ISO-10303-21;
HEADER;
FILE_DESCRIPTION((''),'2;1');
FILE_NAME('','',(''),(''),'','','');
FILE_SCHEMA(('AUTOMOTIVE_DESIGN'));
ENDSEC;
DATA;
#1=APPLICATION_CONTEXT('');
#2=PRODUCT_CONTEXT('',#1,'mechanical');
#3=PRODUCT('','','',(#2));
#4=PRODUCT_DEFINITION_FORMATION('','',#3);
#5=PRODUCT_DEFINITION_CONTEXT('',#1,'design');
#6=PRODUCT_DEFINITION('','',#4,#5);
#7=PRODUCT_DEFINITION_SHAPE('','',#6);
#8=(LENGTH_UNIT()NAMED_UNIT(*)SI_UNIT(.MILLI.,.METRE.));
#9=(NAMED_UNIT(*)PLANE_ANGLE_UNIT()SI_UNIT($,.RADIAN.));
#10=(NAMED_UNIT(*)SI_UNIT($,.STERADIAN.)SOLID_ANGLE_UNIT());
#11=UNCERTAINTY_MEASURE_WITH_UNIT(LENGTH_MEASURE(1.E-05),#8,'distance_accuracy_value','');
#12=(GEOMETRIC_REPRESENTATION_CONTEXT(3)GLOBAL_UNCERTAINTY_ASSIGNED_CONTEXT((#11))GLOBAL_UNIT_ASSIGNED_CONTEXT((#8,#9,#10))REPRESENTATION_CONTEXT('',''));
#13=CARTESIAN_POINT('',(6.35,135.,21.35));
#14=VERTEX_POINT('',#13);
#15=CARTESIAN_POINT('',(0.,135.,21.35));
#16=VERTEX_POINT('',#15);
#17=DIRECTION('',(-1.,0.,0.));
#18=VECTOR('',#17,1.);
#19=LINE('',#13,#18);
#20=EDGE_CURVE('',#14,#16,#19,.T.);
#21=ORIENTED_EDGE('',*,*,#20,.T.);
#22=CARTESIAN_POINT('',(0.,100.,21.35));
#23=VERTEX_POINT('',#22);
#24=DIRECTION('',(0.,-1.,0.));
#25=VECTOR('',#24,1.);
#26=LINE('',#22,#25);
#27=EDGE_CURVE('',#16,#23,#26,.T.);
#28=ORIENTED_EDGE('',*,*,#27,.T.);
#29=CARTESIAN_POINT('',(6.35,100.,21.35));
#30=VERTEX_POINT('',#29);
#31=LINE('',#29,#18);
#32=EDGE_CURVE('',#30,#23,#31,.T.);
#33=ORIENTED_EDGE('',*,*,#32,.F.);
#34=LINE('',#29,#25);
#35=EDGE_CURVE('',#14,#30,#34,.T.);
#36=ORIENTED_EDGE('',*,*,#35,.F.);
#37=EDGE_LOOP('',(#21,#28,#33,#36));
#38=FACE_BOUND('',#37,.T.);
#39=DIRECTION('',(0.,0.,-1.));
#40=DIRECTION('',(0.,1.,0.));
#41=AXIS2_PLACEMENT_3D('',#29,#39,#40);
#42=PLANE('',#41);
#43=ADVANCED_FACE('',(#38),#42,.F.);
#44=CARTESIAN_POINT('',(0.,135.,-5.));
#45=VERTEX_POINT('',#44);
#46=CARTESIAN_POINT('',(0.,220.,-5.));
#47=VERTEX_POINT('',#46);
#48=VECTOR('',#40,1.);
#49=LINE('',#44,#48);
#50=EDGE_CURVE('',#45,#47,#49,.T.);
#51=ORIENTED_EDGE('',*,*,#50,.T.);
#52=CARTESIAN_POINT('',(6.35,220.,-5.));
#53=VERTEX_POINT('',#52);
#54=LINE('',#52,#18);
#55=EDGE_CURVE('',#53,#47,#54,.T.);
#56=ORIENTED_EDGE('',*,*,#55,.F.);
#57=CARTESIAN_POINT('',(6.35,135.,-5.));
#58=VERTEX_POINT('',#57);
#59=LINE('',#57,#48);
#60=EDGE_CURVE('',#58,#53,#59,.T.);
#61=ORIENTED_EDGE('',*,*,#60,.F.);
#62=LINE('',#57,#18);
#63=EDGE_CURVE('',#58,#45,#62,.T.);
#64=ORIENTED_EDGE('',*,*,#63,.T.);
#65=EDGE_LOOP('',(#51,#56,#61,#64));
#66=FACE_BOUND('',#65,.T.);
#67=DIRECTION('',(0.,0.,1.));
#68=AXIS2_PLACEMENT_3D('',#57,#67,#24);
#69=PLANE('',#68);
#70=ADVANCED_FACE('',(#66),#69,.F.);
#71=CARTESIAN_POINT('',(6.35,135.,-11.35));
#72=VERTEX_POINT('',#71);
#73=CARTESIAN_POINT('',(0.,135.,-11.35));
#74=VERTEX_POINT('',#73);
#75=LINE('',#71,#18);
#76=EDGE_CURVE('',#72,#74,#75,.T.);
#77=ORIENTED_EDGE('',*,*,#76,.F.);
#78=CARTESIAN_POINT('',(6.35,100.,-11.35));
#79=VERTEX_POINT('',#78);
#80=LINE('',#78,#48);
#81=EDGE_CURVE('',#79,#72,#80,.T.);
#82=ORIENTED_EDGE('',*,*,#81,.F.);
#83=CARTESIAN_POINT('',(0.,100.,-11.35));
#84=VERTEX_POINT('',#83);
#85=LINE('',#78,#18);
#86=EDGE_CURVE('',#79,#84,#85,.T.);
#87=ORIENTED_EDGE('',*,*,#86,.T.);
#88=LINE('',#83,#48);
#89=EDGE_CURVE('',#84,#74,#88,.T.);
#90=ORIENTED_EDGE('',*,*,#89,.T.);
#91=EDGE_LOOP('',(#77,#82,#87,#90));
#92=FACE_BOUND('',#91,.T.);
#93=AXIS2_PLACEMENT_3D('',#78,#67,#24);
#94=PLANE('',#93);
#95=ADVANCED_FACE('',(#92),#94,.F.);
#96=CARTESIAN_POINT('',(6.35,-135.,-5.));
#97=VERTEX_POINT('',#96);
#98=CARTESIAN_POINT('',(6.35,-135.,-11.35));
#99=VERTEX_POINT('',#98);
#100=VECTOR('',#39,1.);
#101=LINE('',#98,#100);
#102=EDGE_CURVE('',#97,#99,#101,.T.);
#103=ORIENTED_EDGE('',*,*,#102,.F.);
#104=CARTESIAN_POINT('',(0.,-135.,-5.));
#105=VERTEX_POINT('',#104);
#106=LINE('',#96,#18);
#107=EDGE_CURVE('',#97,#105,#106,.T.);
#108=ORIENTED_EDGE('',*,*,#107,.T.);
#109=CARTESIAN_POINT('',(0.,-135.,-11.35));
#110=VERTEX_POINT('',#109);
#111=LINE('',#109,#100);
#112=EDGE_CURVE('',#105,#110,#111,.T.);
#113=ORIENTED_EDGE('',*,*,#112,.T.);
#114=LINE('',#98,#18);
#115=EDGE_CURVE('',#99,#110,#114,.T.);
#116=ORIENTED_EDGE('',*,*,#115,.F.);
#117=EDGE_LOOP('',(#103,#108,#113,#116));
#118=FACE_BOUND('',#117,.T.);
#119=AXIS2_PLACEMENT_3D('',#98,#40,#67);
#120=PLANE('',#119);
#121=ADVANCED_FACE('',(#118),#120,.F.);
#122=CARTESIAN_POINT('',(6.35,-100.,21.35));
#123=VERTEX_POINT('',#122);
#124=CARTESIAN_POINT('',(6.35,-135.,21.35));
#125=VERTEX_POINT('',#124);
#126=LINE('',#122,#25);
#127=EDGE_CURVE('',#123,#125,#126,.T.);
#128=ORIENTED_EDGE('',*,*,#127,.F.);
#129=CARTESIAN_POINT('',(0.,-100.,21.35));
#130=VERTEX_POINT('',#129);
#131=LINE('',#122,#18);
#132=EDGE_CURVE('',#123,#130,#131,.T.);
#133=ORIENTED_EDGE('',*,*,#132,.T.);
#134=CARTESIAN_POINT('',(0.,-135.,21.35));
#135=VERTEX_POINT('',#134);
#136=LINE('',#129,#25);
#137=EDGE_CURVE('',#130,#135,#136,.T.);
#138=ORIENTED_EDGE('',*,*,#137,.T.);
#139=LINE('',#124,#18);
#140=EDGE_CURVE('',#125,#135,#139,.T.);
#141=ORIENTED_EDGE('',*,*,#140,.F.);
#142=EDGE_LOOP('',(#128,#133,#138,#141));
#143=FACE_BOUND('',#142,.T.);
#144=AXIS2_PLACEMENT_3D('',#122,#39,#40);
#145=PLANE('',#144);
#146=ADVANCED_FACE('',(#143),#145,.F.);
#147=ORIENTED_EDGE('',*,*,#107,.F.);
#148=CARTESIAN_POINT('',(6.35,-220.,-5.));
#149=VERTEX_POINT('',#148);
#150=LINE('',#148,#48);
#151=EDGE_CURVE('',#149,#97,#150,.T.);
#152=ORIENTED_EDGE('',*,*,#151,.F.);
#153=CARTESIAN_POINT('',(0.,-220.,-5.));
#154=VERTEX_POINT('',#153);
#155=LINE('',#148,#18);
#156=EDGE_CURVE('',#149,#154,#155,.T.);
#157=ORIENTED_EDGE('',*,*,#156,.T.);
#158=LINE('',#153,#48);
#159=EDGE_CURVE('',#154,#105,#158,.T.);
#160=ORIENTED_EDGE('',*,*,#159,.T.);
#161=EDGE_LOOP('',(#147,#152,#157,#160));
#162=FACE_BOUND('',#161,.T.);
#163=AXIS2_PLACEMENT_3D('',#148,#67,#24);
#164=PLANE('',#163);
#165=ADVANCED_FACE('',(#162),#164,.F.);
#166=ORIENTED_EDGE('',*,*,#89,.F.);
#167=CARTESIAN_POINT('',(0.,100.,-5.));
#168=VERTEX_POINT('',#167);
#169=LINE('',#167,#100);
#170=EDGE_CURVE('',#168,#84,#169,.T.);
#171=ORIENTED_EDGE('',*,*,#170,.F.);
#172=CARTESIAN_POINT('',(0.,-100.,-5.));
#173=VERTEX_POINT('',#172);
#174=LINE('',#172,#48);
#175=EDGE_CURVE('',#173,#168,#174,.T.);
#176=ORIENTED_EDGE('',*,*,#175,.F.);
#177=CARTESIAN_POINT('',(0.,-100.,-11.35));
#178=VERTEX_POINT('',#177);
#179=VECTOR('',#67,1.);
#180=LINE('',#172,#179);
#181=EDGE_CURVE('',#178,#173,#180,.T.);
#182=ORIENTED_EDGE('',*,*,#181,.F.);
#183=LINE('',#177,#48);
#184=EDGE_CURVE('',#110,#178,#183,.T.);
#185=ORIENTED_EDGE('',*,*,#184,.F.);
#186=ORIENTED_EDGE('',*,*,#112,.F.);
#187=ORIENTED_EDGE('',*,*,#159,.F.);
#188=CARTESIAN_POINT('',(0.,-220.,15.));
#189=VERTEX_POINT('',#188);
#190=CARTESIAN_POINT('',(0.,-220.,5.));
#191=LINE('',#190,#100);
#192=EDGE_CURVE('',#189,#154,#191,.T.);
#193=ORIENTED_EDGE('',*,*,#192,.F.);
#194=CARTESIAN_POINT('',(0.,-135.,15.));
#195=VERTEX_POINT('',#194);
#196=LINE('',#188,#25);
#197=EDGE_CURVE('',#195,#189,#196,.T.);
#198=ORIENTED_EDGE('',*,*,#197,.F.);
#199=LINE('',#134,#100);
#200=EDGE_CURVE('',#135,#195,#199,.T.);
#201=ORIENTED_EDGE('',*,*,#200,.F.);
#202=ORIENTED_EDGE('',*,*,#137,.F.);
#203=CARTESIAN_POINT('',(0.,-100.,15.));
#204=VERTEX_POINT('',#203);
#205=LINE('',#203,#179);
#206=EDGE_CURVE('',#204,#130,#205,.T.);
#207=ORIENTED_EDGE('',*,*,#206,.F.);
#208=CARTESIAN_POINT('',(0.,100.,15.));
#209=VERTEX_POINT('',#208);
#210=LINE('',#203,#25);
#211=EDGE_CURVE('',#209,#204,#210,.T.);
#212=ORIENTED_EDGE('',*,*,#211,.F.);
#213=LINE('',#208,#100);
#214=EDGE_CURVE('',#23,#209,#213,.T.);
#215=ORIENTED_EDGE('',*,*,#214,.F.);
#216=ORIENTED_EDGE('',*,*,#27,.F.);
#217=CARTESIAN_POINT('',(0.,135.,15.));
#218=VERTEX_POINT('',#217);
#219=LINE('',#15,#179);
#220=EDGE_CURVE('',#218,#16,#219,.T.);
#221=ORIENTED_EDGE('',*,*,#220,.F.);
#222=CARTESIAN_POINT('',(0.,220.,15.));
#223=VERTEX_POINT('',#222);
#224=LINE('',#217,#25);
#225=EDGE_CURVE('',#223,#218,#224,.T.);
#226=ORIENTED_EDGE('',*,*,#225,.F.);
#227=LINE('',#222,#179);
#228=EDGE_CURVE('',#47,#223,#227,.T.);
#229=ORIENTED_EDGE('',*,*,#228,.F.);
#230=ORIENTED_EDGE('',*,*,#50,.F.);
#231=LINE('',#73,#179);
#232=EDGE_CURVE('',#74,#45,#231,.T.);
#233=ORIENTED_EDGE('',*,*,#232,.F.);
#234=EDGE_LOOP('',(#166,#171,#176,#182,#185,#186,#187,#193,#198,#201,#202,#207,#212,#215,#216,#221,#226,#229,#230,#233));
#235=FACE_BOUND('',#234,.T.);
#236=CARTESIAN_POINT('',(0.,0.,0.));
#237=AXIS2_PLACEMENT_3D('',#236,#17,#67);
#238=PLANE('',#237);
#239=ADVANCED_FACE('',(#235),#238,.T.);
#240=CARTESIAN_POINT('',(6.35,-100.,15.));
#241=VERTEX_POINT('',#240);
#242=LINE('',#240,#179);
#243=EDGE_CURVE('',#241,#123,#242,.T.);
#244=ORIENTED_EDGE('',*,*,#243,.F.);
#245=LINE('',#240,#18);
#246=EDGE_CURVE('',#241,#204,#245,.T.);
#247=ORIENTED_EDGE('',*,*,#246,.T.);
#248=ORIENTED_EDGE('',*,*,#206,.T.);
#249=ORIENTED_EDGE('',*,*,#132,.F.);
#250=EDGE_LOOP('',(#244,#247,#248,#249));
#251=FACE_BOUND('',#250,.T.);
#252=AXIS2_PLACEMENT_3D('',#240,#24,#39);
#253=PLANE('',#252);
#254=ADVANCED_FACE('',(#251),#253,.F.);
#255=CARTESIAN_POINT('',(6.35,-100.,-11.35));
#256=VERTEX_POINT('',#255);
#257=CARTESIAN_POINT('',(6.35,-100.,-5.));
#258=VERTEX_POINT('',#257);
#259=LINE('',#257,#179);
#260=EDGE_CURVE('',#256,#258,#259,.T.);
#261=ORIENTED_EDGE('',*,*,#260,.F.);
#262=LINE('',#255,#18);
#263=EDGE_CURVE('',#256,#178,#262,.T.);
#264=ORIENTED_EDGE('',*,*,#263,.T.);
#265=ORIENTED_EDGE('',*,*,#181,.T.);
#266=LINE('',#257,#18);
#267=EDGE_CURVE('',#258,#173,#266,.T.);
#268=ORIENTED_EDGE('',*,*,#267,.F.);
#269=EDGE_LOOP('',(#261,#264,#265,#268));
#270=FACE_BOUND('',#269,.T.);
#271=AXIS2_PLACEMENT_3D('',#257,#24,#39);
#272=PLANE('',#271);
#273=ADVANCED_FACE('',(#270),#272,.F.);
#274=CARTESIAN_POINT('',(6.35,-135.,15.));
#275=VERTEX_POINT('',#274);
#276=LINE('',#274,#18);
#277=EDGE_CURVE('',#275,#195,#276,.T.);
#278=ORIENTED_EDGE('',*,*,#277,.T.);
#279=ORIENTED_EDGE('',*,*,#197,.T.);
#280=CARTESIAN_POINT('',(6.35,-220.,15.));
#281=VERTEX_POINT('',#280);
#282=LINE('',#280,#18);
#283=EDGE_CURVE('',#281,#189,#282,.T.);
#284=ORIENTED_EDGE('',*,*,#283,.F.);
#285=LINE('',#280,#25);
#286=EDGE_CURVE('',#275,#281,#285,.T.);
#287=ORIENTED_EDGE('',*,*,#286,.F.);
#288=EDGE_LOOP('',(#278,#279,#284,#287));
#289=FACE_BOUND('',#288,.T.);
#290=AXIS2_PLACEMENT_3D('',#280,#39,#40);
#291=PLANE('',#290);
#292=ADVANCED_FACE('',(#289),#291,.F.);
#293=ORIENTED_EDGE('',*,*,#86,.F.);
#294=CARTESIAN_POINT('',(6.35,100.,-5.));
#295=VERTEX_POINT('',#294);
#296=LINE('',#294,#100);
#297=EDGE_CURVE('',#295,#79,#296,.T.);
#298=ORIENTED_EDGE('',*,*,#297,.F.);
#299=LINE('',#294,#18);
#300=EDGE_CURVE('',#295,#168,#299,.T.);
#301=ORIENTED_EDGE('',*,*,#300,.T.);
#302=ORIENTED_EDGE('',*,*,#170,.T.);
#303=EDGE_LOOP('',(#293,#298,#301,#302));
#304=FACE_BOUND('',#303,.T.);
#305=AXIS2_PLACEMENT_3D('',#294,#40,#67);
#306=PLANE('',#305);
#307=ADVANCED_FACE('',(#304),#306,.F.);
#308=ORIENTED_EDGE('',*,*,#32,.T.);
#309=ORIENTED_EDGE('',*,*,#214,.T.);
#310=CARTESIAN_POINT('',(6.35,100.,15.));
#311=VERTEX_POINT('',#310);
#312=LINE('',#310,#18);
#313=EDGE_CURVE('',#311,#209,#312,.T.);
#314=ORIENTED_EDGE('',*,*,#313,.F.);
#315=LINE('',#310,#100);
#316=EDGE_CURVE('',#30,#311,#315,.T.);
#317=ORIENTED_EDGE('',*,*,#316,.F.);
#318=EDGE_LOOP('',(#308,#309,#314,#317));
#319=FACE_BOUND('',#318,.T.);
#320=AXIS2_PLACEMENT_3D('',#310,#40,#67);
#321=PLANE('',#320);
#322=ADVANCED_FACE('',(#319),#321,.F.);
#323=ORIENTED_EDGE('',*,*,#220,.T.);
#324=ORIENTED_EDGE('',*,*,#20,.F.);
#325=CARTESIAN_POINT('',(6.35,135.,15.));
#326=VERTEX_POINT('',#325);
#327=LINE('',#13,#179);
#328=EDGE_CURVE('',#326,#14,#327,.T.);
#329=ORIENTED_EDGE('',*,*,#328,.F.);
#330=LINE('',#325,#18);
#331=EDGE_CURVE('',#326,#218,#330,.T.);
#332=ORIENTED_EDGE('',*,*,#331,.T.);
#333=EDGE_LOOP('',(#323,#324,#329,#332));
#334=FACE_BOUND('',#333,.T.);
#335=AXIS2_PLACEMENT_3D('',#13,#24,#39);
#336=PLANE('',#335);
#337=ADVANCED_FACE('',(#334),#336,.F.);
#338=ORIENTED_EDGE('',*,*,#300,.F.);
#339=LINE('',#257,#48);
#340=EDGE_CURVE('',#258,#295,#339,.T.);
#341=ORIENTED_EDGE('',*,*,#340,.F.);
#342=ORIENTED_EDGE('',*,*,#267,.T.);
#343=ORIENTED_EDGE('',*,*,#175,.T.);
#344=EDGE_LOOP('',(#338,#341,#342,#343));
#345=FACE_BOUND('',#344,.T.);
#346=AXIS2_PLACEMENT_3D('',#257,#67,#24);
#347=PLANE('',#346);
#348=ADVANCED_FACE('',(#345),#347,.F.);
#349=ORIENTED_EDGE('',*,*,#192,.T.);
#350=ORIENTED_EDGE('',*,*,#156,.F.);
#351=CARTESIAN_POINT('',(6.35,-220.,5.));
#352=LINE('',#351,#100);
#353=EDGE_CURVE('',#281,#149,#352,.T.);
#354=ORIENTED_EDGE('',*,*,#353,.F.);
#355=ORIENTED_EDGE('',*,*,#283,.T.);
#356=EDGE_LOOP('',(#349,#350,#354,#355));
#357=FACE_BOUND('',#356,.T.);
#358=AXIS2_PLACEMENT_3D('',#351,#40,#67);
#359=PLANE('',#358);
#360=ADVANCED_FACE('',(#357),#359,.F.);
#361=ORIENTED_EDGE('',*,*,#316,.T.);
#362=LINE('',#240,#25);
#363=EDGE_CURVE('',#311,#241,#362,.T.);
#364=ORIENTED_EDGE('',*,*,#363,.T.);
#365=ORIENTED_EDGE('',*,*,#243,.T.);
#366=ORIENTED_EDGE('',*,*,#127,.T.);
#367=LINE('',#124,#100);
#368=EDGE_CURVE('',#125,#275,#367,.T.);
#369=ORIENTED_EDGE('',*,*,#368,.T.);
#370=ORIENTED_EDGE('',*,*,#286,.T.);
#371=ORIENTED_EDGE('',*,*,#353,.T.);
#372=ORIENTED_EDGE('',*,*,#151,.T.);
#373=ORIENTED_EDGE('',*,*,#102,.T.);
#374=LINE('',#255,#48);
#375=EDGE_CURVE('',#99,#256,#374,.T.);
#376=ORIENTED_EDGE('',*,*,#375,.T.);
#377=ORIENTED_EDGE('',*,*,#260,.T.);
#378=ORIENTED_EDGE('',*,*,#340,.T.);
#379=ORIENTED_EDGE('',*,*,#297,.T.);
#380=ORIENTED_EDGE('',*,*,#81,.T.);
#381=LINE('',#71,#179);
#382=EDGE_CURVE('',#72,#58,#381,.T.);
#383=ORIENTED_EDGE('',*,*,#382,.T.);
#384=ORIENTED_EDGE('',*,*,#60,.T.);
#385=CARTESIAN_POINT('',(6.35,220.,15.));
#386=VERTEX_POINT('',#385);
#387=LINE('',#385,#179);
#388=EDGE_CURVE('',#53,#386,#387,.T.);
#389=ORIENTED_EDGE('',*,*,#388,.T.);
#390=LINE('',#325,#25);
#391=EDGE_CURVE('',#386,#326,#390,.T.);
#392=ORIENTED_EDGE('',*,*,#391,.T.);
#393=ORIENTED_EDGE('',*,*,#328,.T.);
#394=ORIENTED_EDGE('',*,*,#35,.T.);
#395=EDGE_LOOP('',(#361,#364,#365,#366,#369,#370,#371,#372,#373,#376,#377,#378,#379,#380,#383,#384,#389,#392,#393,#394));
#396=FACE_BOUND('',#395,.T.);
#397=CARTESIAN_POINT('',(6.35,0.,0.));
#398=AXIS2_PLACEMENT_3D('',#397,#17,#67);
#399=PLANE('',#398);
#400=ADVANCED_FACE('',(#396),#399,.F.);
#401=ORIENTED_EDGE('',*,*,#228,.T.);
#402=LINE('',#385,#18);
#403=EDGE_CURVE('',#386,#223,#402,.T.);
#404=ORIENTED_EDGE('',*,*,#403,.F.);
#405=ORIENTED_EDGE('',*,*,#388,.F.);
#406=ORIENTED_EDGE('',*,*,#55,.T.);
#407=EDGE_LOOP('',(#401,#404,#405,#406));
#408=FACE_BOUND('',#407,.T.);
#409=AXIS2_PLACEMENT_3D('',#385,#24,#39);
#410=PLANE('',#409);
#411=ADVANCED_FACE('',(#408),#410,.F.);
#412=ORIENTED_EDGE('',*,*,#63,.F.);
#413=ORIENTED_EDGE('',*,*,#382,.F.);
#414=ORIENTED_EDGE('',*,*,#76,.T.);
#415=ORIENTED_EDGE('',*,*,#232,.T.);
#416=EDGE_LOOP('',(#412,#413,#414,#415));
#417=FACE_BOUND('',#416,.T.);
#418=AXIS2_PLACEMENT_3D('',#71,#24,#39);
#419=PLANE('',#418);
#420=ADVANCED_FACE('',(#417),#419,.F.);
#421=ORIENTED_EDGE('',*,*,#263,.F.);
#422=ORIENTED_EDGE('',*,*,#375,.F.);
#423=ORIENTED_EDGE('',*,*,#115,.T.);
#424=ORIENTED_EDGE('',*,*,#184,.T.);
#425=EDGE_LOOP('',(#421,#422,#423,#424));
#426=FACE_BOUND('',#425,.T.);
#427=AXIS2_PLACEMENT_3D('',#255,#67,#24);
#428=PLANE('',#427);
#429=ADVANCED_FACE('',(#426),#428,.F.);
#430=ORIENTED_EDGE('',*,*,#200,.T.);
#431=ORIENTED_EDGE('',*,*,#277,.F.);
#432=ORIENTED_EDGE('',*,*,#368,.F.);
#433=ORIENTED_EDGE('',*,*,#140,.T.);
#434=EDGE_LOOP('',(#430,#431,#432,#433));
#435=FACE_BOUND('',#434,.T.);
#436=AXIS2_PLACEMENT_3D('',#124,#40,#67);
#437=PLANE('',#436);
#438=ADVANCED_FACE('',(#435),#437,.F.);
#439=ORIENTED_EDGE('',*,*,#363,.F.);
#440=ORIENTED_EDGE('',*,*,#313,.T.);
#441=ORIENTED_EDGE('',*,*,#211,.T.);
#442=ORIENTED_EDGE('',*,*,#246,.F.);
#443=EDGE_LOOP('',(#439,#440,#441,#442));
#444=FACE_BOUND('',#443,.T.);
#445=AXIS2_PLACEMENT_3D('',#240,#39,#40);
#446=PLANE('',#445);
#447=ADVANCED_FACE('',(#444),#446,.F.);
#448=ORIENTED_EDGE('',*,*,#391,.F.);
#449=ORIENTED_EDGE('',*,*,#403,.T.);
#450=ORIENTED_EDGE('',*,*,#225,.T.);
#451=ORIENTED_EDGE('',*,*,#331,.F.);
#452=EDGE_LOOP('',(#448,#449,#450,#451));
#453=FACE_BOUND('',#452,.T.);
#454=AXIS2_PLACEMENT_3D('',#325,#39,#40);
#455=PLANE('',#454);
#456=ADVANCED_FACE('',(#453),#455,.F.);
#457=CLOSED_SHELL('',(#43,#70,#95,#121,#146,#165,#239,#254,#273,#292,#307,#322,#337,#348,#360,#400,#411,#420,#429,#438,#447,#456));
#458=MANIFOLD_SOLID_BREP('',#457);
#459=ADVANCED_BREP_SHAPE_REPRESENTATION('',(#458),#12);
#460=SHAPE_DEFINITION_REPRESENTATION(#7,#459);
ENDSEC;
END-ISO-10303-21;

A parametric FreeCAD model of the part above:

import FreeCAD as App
import Part
import Sketcher
Q = App.Units.Quantity

doc = App.newDocument("Part")
params = doc.addObject("Spreadsheet::Sheet", "Params")
for row, (alias, value) in enumerate([
    ("sketch1_width", "85 mm"),
    ("sketch1_width2", "35 mm"),
    ("sketch1_width3", "200 mm"),
    ("sketch1_height", "20 mm"),
    ("sketch1_height2", "6.35 mm"),
    ("pad1_length", "6.35 mm"),
], start=1):
    params.set(f"A{row}", alias)
    params.set(f"B{row}", "=" + value)
    params.setAlias(f"B{row}", alias)

body = doc.addObject("PartDesign::Body", "Body")

sketch1 = doc.addObject("Sketcher::SketchObject", "Sketch")
body.addObject(sketch1)
sketch1.AttachmentSupport = (doc.YZ_Plane, [""])
sketch1.MapMode = "FlatFace"
sketch1.addGeometry([
    Part.LineSegment(App.Vector(-220, -5, 0), App.Vector(-135, -5, 0)),
    Part.LineSegment(App.Vector(-135, -5, 0), App.Vector(-135, -11.35, 0)),
    Part.LineSegment(App.Vector(-135, -11.35, 0), App.Vector(-100, -11.35, 0)),
    Part.LineSegment(App.Vector(-100, -11.35, 0), App.Vector(-100, -5, 0)),
    Part.LineSegment(App.Vector(-100, -5, 0), App.Vector(100, -5, 0)),
    Part.LineSegment(App.Vector(100, -5, 0), App.Vector(100, -11.35, 0)),
    Part.LineSegment(App.Vector(100, -11.35, 0), App.Vector(135, -11.35, 0)),
    Part.LineSegment(App.Vector(135, -11.35, 0), App.Vector(135, -5, 0)),
    Part.LineSegment(App.Vector(135, -5, 0), App.Vector(220, -5, 0)),
    Part.LineSegment(App.Vector(220, -5, 0), App.Vector(220, 15, 0)),
    Part.LineSegment(App.Vector(220, 15, 0), App.Vector(135, 15, 0)),
    Part.LineSegment(App.Vector(135, 15, 0), App.Vector(135, 21.35, 0)),
    Part.LineSegment(App.Vector(135, 21.35, 0), App.Vector(100, 21.35, 0)),
    Part.LineSegment(App.Vector(100, 21.35, 0), App.Vector(100, 15, 0)),
    Part.LineSegment(App.Vector(100, 15, 0), App.Vector(-100, 15, 0)),
    Part.LineSegment(App.Vector(-100, 15, 0), App.Vector(-100, 21.35, 0)),
    Part.LineSegment(App.Vector(-100, 21.35, 0), App.Vector(-135, 21.35, 0)),
    Part.LineSegment(App.Vector(-135, 21.35, 0), App.Vector(-135, 15, 0)),
    Part.LineSegment(App.Vector(-135, 15, 0), App.Vector(-220, 15, 0)),
    Part.LineSegment(App.Vector(-220, 15, 0), App.Vector(-220, -5, 0)),
], False)
sketch1.addConstraint([
    Sketcher.Constraint("Coincident", 0, 2, 1, 1),
    Sketcher.Constraint("Coincident", 1, 2, 2, 1),
    Sketcher.Constraint("Coincident", 2, 2, 3, 1),
    Sketcher.Constraint("Coincident", 3, 2, 4, 1),
    Sketcher.Constraint("Coincident", 4, 2, 5, 1),
    Sketcher.Constraint("Coincident", 5, 2, 6, 1),
    Sketcher.Constraint("Coincident", 6, 2, 7, 1),
    Sketcher.Constraint("Coincident", 7, 2, 8, 1),
    Sketcher.Constraint("Coincident", 8, 2, 9, 1),
    Sketcher.Constraint("Coincident", 9, 2, 10, 1),
    Sketcher.Constraint("Coincident", 10, 2, 11, 1),
    Sketcher.Constraint("Coincident", 11, 2, 12, 1),
    Sketcher.Constraint("Coincident", 12, 2, 13, 1),
    Sketcher.Constraint("Coincident", 13, 2, 14, 1),
    Sketcher.Constraint("Coincident", 14, 2, 15, 1),
    Sketcher.Constraint("Coincident", 15, 2, 16, 1),
    Sketcher.Constraint("Coincident", 16, 2, 17, 1),
    Sketcher.Constraint("Coincident", 17, 2, 18, 1),
    Sketcher.Constraint("Coincident", 18, 2, 19, 1),
    Sketcher.Constraint("Coincident", 19, 2, 0, 1),
    Sketcher.Constraint("Horizontal", 0),
    Sketcher.Constraint("Vertical", 1),
    Sketcher.Constraint("Horizontal", 2),
    Sketcher.Constraint("Vertical", 3),
    Sketcher.Constraint("Horizontal", 4),
    Sketcher.Constraint("Vertical", 5),
    Sketcher.Constraint("Horizontal", 6),
    Sketcher.Constraint("Vertical", 7),
    Sketcher.Constraint("Horizontal", 8),
    Sketcher.Constraint("Vertical", 9),
    Sketcher.Constraint("Horizontal", 10),
    Sketcher.Constraint("Vertical", 11),
    Sketcher.Constraint("Horizontal", 12),
    Sketcher.Constraint("Vertical", 13),
    Sketcher.Constraint("Horizontal", 14),
    Sketcher.Constraint("Vertical", 15),
    Sketcher.Constraint("Horizontal", 16),
    Sketcher.Constraint("Vertical", 17),
    Sketcher.Constraint("Horizontal", 18),
    Sketcher.Constraint("Vertical", 19),
    Sketcher.Constraint("Symmetric", 2, 2, 5, 2, -2),
    Sketcher.Constraint("Symmetric", 0, 2, 7, 2, -2),
    Sketcher.Constraint("Symmetric", 12, 2, 15, 2, -2),
    Sketcher.Constraint("Symmetric", 10, 2, 17, 2, -2),
    Sketcher.Constraint("Horizontal", 0, 2, 3, 2),
    Sketcher.Constraint("Horizontal", 10, 2, 13, 2),
    Sketcher.Constraint("Vertical", 7, 2, 10, 2),
    Sketcher.Constraint("Vertical", 5, 2, 12, 2),
    Sketcher.Constraint("Equal", 0, 8),
    Sketcher.Constraint("Equal", 7, 11),
    Sketcher.Constraint("DistanceX", 0, 1, 0, 2, Q("85 mm")),
    Sketcher.Constraint("DistanceX", 2, 1, 2, 2, Q("35 mm")),
    Sketcher.Constraint("DistanceX", 4, 1, 4, 2, Q("200 mm")),
    Sketcher.Constraint("DistanceY", 9, 1, 9, 2, Q("20 mm")),
    Sketcher.Constraint("DistanceY", 0, 2, -1, 1, Q("5 mm")),
    Sketcher.Constraint("DistanceY", 1, 2, 1, 1, Q("6.35 mm")),
])
sketch1.setExpression("Constraints[50]", "Params.sketch1_width")
sketch1.setExpression("Constraints[51]", "Params.sketch1_width2")
sketch1.setExpression("Constraints[52]", "Params.sketch1_width3")
sketch1.setExpression("Constraints[53]", "Params.sketch1_height")
sketch1.setExpression("Constraints[55]", "Params.sketch1_height2")
pad1 = doc.addObject("PartDesign::Pad", "Pad")
body.addObject(pad1)
pad1.Profile = sketch1
pad1.setExpression("Length", "Params.pad1_length")

doc.recompute()
